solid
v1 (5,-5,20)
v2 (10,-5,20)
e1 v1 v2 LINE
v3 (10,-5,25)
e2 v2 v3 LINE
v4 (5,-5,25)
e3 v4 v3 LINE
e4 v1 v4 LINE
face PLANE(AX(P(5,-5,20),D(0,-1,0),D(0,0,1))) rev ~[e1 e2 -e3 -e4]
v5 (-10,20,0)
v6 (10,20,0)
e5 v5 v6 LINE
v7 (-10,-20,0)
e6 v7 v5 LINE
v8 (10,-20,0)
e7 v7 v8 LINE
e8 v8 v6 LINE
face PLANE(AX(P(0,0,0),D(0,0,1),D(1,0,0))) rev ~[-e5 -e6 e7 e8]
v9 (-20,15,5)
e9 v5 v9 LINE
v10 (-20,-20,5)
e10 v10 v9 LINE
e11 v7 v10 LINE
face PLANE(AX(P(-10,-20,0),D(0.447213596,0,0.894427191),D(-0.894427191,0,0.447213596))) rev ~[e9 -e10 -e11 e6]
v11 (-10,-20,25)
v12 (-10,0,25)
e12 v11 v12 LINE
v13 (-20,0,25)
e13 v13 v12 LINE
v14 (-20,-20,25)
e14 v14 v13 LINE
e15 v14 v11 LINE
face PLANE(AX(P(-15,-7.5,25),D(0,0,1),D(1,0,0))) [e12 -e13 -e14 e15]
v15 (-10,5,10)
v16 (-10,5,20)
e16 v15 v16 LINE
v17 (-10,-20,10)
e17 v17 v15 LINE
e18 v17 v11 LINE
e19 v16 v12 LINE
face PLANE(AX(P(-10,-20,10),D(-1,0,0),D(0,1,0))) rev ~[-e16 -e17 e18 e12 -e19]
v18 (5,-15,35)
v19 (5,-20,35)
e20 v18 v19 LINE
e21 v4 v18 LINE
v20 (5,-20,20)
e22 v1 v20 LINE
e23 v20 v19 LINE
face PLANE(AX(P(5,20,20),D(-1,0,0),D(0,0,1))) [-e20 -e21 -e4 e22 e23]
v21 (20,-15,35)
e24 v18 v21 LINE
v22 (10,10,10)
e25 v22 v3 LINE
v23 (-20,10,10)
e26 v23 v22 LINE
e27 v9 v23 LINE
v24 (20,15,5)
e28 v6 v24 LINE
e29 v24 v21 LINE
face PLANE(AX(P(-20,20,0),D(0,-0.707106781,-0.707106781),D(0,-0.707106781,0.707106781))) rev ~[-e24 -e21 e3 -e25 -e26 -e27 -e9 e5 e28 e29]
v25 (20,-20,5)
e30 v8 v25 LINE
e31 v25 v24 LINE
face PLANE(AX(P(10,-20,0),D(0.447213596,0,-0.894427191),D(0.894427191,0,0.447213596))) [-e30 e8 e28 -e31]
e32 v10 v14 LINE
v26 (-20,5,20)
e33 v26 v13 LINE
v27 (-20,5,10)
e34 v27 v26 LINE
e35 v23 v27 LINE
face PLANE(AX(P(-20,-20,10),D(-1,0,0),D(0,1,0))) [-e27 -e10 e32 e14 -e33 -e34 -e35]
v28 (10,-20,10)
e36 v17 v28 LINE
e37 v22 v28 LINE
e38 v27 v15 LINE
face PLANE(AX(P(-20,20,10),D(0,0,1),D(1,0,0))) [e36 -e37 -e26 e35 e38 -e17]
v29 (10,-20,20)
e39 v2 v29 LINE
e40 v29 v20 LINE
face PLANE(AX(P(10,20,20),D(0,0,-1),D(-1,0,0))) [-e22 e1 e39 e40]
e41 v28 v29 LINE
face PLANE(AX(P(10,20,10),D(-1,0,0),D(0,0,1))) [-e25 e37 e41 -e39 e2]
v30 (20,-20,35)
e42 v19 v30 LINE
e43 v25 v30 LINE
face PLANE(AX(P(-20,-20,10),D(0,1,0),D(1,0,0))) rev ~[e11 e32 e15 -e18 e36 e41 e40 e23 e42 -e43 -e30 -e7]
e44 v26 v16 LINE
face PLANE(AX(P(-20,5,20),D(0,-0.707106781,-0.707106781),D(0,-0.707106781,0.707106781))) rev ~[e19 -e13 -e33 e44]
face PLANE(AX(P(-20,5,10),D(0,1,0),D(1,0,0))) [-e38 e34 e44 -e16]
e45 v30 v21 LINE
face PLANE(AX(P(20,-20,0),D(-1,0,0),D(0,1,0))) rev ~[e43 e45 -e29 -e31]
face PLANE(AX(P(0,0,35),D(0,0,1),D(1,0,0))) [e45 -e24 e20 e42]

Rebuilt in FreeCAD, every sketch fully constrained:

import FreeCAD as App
import Part
import Sketcher
Q = App.Units.Quantity

doc = App.newDocument("Part")
params = doc.addObject("Spreadsheet::Sheet", "Params")
for row, (alias, value) in enumerate([
    ("sketch1_width", "40 mm"),
    ("pad1_length", "35 mm"),
    ("sketch2_width", "30 mm"),
    ("sketch2_width2", "25 mm"),
    ("sketch2_height", "15 mm"),
    ("sketch3_width", "35 mm"),
    ("sketch4_width", "5 mm"),
    ("pocket3_length", "5 mm"),
    ("sketch5_width", "10 mm"),
    ("sketch5_height", "25 mm"),
    ("pad2_length", "15 mm"),
    ("sketch6_width", "5 mm"),
    ("pocket4_length", "15 mm"),
    ("sketch7_width", "10 mm"),
    ("sketch7_height", "5 mm"),
], start=1):
    params.set(f"A{row}", alias)
    params.set(f"B{row}", "=" + value)
    params.setAlias(f"B{row}", alias)

body = doc.addObject("PartDesign::Body", "Body")

# Sketch on XY plane
sketch1 = body.newObject("Sketcher::SketchObject", "Sketch")
sketch1.AttachmentSupport = (doc.getObject("XY_Plane"), [""])
sketch1.MapMode = "FlatFace"
sketch1.addGeometry([
    Part.LineSegment(App.Vector(-20, 20, 0), App.Vector(-20, -20, 0)),
    Part.LineSegment(App.Vector(-20, -20, 0), App.Vector(20, -20, 0)),
    Part.LineSegment(App.Vector(20, -20, 0), App.Vector(20, 20, 0)),
    Part.LineSegment(App.Vector(20, 20, 0), App.Vector(-20, 20, 0)),
], False)
sketch1.addConstraint([
    Sketcher.Constraint("Coincident", 0, 2, 1, 1),
    Sketcher.Constraint("Coincident", 1, 2, 2, 1),
    Sketcher.Constraint("Coincident", 2, 2, 3, 1),
    Sketcher.Constraint("Coincident", 3, 2, 0, 1),
    Sketcher.Constraint("Vertical", 0),
    Sketcher.Constraint("Horizontal", 1),
    Sketcher.Constraint("Vertical", 2),
    Sketcher.Constraint("Horizontal", 3),
    Sketcher.Constraint("Symmetric", 0, 2, 2, 2, -1, 1),
    Sketcher.Constraint("Equal", 3, 0),
    Sketcher.Constraint("DistanceX", 1, 1, 1, 2, Q("40 mm")),
])
sketch1.setExpression("Constraints[10]", "Params.sketch1_width")
pad1 = body.newObject("PartDesign::Pad", "Pad")
pad1.Profile = sketch1
pad1.setExpression("Length", "Params.pad1_length")

# Sketch on XZ plane
sketch2 = body.newObject("Sketcher::SketchObject", "Sketch001")
sketch2.AttachmentSupport = (doc.getObject("XZ_Plane"), [""])
sketch2.MapMode = "FlatFace"
sketch2.AttachmentOffset = App.Placement(App.Vector(0, 0, -20), App.Rotation())
sketch2.addGeometry([
    Part.LineSegment(App.Vector(10, 10, 0), App.Vector(-20, 10, 0)),  # 0
    Part.LineSegment(App.Vector(-20, 10, 0), App.Vector(-20, 35, 0)),  # 1
    Part.LineSegment(App.Vector(-20, 35, 0), App.Vector(5, 35, 0)),  # 2
    Part.LineSegment(App.Vector(5, 35, 0), App.Vector(5, 20, 0)),  # 3
    Part.LineSegment(App.Vector(5, 20, 0), App.Vector(10, 20, 0)),  # 4
    Part.LineSegment(App.Vector(10, 20, 0), App.Vector(10, 10, 0)),  # 5
], False)
sketch2.addConstraint([
    Sketcher.Constraint("Coincident", 0, 2, 1, 1),
    Sketcher.Constraint("Coincident", 1, 2, 2, 1),
    Sketcher.Constraint("Coincident", 2, 2, 3, 1),
    Sketcher.Constraint("Coincident", 3, 2, 4, 1),
    Sketcher.Constraint("Coincident", 4, 2, 5, 1),
    Sketcher.Constraint("Coincident", 5, 2, 0, 1),
    Sketcher.Constraint("Horizontal", 0),
    Sketcher.Constraint("Vertical", 1),
    Sketcher.Constraint("Horizontal", 2),
    Sketcher.Constraint("Vertical", 3),
    Sketcher.Constraint("Horizontal", 4),
    Sketcher.Constraint("Vertical", 5),
    Sketcher.Constraint("Equal", 2, 1),
    Sketcher.Constraint("DistanceX", 0, 2, 0, 1, Q("30 mm")),
    Sketcher.Constraint("DistanceX", 2, 1, 2, 2, Q("25 mm")),
    Sketcher.Constraint("DistanceY", 3, 2, 3, 1, Q("15 mm")),
    Sketcher.Constraint("DistanceX", 0, 2, -1, 1, Q("20 mm")),
    Sketcher.Constraint("DistanceY", -1, 1, 0, 2, Q("10 mm")),
])
sketch2.setExpression("Constraints[13]", "Params.sketch2_width")
sketch2.setExpression("Constraints[14]", "Params.sketch2_width2")
sketch2.setExpression("Constraints[15]", "Params.sketch2_height")
pocket1 = body.newObject("PartDesign::Pocket", "Pocket")
pocket1.Profile = sketch2
pocket1.Type = "ThroughAll"
pocket1.Reversed = True

# Sketch on YZ plane
sketch3 = body.newObject("Sketcher::SketchObject", "Sketch002")
sketch3.AttachmentSupport = (doc.getObject("YZ_Plane"), [""])
sketch3.MapMode = "FlatFace"
sketch3.AttachmentOffset = App.Placement(App.Vector(0, 0, -20), App.Rotation())
sketch3.addGeometry([
    Part.LineSegment(App.Vector(-15, 35, 0), App.Vector(20, 0, 0)),
    Part.LineSegment(App.Vector(20, 0, 0), App.Vector(20, 35, 0)),
    Part.LineSegment(App.Vector(20, 35, 0), App.Vector(-15, 35, 0)),
], False)
sketch3.addConstraint([
    Sketcher.Constraint("Coincident", 0, 2, 1, 1),
    Sketcher.Constraint("Coincident", 1, 2, 2, 1),
    Sketcher.Constraint("Coincident", 2, 2, 0, 1),
    Sketcher.Constraint("Vertical", 1),
    Sketcher.Constraint("Horizontal", 2),
    Sketcher.Constraint("PointOnObject", 0, 2, -1),
    Sketcher.Constraint("Equal", 2, 1),
    Sketcher.Constraint("DistanceX", 2, 2, 2, 1, Q("35 mm")),
    Sketcher.Constraint("DistanceX", -1, 1, 0, 2, Q("20 mm")),
])
sketch3.setExpression("Constraints[7]", "Params.sketch3_width")
pocket2 = body.newObject("PartDesign::Pocket", "Pocket001")
pocket2.Profile = sketch3
pocket2.Type = "ThroughAll"
pocket2.Reversed = True

# Sketch on YZ plane
sketch4 = body.newObject("Sketcher::SketchObject", "Sketch003")
sketch4.AttachmentSupport = (doc.getObject("YZ_Plane"), [""])
sketch4.MapMode = "FlatFace"
sketch4.AttachmentOffset = App.Placement(App.Vector(0, 0, 5), App.Rotation())
sketch4.addGeometry([
    Part.LineSegment(App.Vector(0, 20, 0), App.Vector(-5, 20, 0)),
    Part.LineSegment(App.Vector(-5, 20, 0), App.Vector(-5, 25, 0)),
    Part.LineSegment(App.Vector(-5, 25, 0), App.Vector(0, 20, 0)),
], False)
sketch4.addConstraint([
    Sketcher.Constraint("Coincident", 0, 2, 1, 1),
    Sketcher.Constraint("Coincident", 1, 2, 2, 1),
    Sketcher.Constraint("Coincident", 2, 2, 0, 1),
    Sketcher.Constraint("Horizontal", 0),
    Sketcher.Constraint("Vertical", 1),
    Sketcher.Constraint("PointOnObject", 2, 2, -2),
    Sketcher.Constraint("Equal", 0, 1),
    Sketcher.Constraint("DistanceX", 0, 2, 0, 1, Q("5 mm")),
    Sketcher.Constraint("DistanceY", -1, 1, 0, 2, Q("20 mm")),
])
sketch4.setExpression("Constraints[7]", "Params.sketch4_width")
pocket3 = body.newObject("PartDesign::Pocket", "Pocket002")
pocket3.Profile = sketch4
pocket3.setExpression("Length", "Params.pocket3_length")
pocket3.Reversed = True

# Sketch on XY plane
sketch5 = body.newObject("Sketcher::SketchObject", "Sketch004")
sketch5.AttachmentSupport = (doc.getObject("XY_Plane"), [""])
sketch5.MapMode = "FlatFace"
sketch5.AttachmentOffset = App.Placement(App.Vector(0, 0, 10), App.Rotation())
sketch5.addGeometry([
    Part.LineSegment(App.Vector(-20, 5, 0), App.Vector(-20, -20, 0)),
    Part.LineSegment(App.Vector(-20, -20, 0), App.Vector(-10, -20, 0)),
    Part.LineSegment(App.Vector(-10, -20, 0), App.Vector(-10, 5, 0)),
    Part.LineSegment(App.Vector(-10, 5, 0), App.Vector(-20, 5, 0)),
], False)
sketch5.addConstraint([
    Sketcher.Constraint("Coincident", 0, 2, 1, 1),
    Sketcher.Constraint("Coincident", 1, 2, 2, 1),
    Sketcher.Constraint("Coincident", 2, 2, 3, 1),
    Sketcher.Constraint("Coincident", 3, 2, 0, 1),
    Sketcher.Constraint("Vertical", 0),
    Sketcher.Constraint("Horizontal", 1),
    Sketcher.Constraint("Vertical", 2),
    Sketcher.Constraint("Horizontal", 3),
    Sketcher.Constraint("DistanceX", 1, 1, 1, 2, Q("10 mm")),
    Sketcher.Constraint("DistanceY", 0, 2, 0, 1, Q("25 mm")),
    Sketcher.Constraint("DistanceX", 0, 2, -1, 1, Q("20 mm")),
    Sketcher.Constraint("DistanceY", 0, 2, -1, 1, Q("20 mm")),
])
sketch5.setExpression("Constraints[8]", "Params.sketch5_width")
sketch5.setExpression("Constraints[9]", "Params.sketch5_height")
pad2 = body.newObject("PartDesign::Pad", "Pad001")
pad2.Profile = sketch5
pad2.setExpression("Length", "Params.pad2_length")

# Sketch on YZ plane
sketch6 = body.newObject("Sketcher::SketchObject", "Sketch005")
sketch6.AttachmentSupport = (doc.getObject("YZ_Plane"), [""])
sketch6.MapMode = "FlatFace"
sketch6.AttachmentOffset = App.Placement(App.Vector(0, 0, -20), App.Rotation())
sketch6.addGeometry([
    Part.LineSegment(App.Vector(5, 25, 0), App.Vector(5, 20, 0)),
    Part.LineSegment(App.Vector(5, 20, 0), App.Vector(0, 25, 0)),
    Part.LineSegment(App.Vector(0, 25, 0), App.Vector(5, 25, 0)),
], False)
sketch6.addConstraint([
    Sketcher.Constraint("Coincident", 0, 2, 1, 1),
    Sketcher.Constraint("Coincident", 1, 2, 2, 1),
    Sketcher.Constraint("Coincident", 2, 2, 0, 1),
    Sketcher.Constraint("Vertical", 0),
    Sketcher.Constraint("Horizontal", 2),
    Sketcher.Constraint("PointOnObject", 1, 2, -2),
    Sketcher.Constraint("Equal", 2, 0),
    Sketcher.Constraint("DistanceX", 2, 1, 2, 2, Q("5 mm")),
    Sketcher.Constraint("DistanceY", -1, 1, 0, 2, Q("20 mm")),
])
sketch6.setExpression("Constraints[7]", "Params.sketch6_width")
pocket4 = body.newObject("PartDesign::Pocket", "Pocket003")
pocket4.Profile = sketch6
pocket4.setExpression("Length", "Params.pocket4_length")
pocket4.Reversed = True

# Sketch on XZ plane
sketch7 = body.newObject("Sketcher::SketchObject", "Sketch006")
sketch7.AttachmentSupport = (doc.getObject("XZ_Plane"), [""])
sketch7.MapMode = "FlatFace"
sketch7.AttachmentOffset = App.Placement(App.Vector(0, 0, 20), App.Rotation())
sketch7.addGeometry([
    Part.LineSegment(App.Vector(20, 5, 0), App.Vector(10, 0, 0)),  # 0
    Part.LineSegment(App.Vector(10, 0, 0), App.Vector(20, 0, 0)),  # 1
    Part.LineSegment(App.Vector(20, 0, 0), App.Vector(20, 5, 0)),  # 2
    Part.LineSegment(App.Vector(-20, 0, 0), App.Vector(-10, 0, 0)),  # 3
    Part.LineSegment(App.Vector(-10, 0, 0), App.Vector(-20, 5, 0)),  # 4
    Part.LineSegment(App.Vector(-20, 5, 0), App.Vector(-20, 0, 0)),  # 5
], False)
sketch7.addConstraint([
    Sketcher.Constraint("Coincident", 0, 2, 1, 1),
    Sketcher.Constraint("Coincident", 1, 2, 2, 1),
    Sketcher.Constraint("Coincident", 2, 2, 0, 1),
    Sketcher.Constraint("Coincident", 3, 2, 4, 1),
    Sketcher.Constraint("Coincident", 4, 2, 5, 1),
    Sketcher.Constraint("Coincident", 5, 2, 3, 1),
    Sketcher.Constraint("Horizontal", 1),
    Sketcher.Constraint("Vertical", 2),
    Sketcher.Constraint("Horizontal", 3),
    Sketcher.Constraint("Vertical", 5),
    Sketcher.Constraint("Symmetric", 0, 2, 3, 2, -1, 1),
    Sketcher.Constraint("Symmetric", 2, 2, 4, 2, -2),
    Sketcher.Constraint("PointOnObject", 0, 2, -1),
    Sketcher.Constraint("DistanceX", 1, 1, 1, 2, Q("10 mm")),
    Sketcher.Constraint("DistanceY", 2, 1, 2, 2, Q("5 mm")),
    Sketcher.Constraint("DistanceX", -1, 1, 0, 2, Q("10 mm")),
])
sketch7.setExpression("Constraints[13]", "Params.sketch7_width")
sketch7.setExpression("Constraints[14]", "Params.sketch7_height")
pocket5 = body.newObject("PartDesign::Pocket", "Pocket004")
pocket5.Profile = sketch7
pocket5.Type = "ThroughAll"

doc.recompute()
